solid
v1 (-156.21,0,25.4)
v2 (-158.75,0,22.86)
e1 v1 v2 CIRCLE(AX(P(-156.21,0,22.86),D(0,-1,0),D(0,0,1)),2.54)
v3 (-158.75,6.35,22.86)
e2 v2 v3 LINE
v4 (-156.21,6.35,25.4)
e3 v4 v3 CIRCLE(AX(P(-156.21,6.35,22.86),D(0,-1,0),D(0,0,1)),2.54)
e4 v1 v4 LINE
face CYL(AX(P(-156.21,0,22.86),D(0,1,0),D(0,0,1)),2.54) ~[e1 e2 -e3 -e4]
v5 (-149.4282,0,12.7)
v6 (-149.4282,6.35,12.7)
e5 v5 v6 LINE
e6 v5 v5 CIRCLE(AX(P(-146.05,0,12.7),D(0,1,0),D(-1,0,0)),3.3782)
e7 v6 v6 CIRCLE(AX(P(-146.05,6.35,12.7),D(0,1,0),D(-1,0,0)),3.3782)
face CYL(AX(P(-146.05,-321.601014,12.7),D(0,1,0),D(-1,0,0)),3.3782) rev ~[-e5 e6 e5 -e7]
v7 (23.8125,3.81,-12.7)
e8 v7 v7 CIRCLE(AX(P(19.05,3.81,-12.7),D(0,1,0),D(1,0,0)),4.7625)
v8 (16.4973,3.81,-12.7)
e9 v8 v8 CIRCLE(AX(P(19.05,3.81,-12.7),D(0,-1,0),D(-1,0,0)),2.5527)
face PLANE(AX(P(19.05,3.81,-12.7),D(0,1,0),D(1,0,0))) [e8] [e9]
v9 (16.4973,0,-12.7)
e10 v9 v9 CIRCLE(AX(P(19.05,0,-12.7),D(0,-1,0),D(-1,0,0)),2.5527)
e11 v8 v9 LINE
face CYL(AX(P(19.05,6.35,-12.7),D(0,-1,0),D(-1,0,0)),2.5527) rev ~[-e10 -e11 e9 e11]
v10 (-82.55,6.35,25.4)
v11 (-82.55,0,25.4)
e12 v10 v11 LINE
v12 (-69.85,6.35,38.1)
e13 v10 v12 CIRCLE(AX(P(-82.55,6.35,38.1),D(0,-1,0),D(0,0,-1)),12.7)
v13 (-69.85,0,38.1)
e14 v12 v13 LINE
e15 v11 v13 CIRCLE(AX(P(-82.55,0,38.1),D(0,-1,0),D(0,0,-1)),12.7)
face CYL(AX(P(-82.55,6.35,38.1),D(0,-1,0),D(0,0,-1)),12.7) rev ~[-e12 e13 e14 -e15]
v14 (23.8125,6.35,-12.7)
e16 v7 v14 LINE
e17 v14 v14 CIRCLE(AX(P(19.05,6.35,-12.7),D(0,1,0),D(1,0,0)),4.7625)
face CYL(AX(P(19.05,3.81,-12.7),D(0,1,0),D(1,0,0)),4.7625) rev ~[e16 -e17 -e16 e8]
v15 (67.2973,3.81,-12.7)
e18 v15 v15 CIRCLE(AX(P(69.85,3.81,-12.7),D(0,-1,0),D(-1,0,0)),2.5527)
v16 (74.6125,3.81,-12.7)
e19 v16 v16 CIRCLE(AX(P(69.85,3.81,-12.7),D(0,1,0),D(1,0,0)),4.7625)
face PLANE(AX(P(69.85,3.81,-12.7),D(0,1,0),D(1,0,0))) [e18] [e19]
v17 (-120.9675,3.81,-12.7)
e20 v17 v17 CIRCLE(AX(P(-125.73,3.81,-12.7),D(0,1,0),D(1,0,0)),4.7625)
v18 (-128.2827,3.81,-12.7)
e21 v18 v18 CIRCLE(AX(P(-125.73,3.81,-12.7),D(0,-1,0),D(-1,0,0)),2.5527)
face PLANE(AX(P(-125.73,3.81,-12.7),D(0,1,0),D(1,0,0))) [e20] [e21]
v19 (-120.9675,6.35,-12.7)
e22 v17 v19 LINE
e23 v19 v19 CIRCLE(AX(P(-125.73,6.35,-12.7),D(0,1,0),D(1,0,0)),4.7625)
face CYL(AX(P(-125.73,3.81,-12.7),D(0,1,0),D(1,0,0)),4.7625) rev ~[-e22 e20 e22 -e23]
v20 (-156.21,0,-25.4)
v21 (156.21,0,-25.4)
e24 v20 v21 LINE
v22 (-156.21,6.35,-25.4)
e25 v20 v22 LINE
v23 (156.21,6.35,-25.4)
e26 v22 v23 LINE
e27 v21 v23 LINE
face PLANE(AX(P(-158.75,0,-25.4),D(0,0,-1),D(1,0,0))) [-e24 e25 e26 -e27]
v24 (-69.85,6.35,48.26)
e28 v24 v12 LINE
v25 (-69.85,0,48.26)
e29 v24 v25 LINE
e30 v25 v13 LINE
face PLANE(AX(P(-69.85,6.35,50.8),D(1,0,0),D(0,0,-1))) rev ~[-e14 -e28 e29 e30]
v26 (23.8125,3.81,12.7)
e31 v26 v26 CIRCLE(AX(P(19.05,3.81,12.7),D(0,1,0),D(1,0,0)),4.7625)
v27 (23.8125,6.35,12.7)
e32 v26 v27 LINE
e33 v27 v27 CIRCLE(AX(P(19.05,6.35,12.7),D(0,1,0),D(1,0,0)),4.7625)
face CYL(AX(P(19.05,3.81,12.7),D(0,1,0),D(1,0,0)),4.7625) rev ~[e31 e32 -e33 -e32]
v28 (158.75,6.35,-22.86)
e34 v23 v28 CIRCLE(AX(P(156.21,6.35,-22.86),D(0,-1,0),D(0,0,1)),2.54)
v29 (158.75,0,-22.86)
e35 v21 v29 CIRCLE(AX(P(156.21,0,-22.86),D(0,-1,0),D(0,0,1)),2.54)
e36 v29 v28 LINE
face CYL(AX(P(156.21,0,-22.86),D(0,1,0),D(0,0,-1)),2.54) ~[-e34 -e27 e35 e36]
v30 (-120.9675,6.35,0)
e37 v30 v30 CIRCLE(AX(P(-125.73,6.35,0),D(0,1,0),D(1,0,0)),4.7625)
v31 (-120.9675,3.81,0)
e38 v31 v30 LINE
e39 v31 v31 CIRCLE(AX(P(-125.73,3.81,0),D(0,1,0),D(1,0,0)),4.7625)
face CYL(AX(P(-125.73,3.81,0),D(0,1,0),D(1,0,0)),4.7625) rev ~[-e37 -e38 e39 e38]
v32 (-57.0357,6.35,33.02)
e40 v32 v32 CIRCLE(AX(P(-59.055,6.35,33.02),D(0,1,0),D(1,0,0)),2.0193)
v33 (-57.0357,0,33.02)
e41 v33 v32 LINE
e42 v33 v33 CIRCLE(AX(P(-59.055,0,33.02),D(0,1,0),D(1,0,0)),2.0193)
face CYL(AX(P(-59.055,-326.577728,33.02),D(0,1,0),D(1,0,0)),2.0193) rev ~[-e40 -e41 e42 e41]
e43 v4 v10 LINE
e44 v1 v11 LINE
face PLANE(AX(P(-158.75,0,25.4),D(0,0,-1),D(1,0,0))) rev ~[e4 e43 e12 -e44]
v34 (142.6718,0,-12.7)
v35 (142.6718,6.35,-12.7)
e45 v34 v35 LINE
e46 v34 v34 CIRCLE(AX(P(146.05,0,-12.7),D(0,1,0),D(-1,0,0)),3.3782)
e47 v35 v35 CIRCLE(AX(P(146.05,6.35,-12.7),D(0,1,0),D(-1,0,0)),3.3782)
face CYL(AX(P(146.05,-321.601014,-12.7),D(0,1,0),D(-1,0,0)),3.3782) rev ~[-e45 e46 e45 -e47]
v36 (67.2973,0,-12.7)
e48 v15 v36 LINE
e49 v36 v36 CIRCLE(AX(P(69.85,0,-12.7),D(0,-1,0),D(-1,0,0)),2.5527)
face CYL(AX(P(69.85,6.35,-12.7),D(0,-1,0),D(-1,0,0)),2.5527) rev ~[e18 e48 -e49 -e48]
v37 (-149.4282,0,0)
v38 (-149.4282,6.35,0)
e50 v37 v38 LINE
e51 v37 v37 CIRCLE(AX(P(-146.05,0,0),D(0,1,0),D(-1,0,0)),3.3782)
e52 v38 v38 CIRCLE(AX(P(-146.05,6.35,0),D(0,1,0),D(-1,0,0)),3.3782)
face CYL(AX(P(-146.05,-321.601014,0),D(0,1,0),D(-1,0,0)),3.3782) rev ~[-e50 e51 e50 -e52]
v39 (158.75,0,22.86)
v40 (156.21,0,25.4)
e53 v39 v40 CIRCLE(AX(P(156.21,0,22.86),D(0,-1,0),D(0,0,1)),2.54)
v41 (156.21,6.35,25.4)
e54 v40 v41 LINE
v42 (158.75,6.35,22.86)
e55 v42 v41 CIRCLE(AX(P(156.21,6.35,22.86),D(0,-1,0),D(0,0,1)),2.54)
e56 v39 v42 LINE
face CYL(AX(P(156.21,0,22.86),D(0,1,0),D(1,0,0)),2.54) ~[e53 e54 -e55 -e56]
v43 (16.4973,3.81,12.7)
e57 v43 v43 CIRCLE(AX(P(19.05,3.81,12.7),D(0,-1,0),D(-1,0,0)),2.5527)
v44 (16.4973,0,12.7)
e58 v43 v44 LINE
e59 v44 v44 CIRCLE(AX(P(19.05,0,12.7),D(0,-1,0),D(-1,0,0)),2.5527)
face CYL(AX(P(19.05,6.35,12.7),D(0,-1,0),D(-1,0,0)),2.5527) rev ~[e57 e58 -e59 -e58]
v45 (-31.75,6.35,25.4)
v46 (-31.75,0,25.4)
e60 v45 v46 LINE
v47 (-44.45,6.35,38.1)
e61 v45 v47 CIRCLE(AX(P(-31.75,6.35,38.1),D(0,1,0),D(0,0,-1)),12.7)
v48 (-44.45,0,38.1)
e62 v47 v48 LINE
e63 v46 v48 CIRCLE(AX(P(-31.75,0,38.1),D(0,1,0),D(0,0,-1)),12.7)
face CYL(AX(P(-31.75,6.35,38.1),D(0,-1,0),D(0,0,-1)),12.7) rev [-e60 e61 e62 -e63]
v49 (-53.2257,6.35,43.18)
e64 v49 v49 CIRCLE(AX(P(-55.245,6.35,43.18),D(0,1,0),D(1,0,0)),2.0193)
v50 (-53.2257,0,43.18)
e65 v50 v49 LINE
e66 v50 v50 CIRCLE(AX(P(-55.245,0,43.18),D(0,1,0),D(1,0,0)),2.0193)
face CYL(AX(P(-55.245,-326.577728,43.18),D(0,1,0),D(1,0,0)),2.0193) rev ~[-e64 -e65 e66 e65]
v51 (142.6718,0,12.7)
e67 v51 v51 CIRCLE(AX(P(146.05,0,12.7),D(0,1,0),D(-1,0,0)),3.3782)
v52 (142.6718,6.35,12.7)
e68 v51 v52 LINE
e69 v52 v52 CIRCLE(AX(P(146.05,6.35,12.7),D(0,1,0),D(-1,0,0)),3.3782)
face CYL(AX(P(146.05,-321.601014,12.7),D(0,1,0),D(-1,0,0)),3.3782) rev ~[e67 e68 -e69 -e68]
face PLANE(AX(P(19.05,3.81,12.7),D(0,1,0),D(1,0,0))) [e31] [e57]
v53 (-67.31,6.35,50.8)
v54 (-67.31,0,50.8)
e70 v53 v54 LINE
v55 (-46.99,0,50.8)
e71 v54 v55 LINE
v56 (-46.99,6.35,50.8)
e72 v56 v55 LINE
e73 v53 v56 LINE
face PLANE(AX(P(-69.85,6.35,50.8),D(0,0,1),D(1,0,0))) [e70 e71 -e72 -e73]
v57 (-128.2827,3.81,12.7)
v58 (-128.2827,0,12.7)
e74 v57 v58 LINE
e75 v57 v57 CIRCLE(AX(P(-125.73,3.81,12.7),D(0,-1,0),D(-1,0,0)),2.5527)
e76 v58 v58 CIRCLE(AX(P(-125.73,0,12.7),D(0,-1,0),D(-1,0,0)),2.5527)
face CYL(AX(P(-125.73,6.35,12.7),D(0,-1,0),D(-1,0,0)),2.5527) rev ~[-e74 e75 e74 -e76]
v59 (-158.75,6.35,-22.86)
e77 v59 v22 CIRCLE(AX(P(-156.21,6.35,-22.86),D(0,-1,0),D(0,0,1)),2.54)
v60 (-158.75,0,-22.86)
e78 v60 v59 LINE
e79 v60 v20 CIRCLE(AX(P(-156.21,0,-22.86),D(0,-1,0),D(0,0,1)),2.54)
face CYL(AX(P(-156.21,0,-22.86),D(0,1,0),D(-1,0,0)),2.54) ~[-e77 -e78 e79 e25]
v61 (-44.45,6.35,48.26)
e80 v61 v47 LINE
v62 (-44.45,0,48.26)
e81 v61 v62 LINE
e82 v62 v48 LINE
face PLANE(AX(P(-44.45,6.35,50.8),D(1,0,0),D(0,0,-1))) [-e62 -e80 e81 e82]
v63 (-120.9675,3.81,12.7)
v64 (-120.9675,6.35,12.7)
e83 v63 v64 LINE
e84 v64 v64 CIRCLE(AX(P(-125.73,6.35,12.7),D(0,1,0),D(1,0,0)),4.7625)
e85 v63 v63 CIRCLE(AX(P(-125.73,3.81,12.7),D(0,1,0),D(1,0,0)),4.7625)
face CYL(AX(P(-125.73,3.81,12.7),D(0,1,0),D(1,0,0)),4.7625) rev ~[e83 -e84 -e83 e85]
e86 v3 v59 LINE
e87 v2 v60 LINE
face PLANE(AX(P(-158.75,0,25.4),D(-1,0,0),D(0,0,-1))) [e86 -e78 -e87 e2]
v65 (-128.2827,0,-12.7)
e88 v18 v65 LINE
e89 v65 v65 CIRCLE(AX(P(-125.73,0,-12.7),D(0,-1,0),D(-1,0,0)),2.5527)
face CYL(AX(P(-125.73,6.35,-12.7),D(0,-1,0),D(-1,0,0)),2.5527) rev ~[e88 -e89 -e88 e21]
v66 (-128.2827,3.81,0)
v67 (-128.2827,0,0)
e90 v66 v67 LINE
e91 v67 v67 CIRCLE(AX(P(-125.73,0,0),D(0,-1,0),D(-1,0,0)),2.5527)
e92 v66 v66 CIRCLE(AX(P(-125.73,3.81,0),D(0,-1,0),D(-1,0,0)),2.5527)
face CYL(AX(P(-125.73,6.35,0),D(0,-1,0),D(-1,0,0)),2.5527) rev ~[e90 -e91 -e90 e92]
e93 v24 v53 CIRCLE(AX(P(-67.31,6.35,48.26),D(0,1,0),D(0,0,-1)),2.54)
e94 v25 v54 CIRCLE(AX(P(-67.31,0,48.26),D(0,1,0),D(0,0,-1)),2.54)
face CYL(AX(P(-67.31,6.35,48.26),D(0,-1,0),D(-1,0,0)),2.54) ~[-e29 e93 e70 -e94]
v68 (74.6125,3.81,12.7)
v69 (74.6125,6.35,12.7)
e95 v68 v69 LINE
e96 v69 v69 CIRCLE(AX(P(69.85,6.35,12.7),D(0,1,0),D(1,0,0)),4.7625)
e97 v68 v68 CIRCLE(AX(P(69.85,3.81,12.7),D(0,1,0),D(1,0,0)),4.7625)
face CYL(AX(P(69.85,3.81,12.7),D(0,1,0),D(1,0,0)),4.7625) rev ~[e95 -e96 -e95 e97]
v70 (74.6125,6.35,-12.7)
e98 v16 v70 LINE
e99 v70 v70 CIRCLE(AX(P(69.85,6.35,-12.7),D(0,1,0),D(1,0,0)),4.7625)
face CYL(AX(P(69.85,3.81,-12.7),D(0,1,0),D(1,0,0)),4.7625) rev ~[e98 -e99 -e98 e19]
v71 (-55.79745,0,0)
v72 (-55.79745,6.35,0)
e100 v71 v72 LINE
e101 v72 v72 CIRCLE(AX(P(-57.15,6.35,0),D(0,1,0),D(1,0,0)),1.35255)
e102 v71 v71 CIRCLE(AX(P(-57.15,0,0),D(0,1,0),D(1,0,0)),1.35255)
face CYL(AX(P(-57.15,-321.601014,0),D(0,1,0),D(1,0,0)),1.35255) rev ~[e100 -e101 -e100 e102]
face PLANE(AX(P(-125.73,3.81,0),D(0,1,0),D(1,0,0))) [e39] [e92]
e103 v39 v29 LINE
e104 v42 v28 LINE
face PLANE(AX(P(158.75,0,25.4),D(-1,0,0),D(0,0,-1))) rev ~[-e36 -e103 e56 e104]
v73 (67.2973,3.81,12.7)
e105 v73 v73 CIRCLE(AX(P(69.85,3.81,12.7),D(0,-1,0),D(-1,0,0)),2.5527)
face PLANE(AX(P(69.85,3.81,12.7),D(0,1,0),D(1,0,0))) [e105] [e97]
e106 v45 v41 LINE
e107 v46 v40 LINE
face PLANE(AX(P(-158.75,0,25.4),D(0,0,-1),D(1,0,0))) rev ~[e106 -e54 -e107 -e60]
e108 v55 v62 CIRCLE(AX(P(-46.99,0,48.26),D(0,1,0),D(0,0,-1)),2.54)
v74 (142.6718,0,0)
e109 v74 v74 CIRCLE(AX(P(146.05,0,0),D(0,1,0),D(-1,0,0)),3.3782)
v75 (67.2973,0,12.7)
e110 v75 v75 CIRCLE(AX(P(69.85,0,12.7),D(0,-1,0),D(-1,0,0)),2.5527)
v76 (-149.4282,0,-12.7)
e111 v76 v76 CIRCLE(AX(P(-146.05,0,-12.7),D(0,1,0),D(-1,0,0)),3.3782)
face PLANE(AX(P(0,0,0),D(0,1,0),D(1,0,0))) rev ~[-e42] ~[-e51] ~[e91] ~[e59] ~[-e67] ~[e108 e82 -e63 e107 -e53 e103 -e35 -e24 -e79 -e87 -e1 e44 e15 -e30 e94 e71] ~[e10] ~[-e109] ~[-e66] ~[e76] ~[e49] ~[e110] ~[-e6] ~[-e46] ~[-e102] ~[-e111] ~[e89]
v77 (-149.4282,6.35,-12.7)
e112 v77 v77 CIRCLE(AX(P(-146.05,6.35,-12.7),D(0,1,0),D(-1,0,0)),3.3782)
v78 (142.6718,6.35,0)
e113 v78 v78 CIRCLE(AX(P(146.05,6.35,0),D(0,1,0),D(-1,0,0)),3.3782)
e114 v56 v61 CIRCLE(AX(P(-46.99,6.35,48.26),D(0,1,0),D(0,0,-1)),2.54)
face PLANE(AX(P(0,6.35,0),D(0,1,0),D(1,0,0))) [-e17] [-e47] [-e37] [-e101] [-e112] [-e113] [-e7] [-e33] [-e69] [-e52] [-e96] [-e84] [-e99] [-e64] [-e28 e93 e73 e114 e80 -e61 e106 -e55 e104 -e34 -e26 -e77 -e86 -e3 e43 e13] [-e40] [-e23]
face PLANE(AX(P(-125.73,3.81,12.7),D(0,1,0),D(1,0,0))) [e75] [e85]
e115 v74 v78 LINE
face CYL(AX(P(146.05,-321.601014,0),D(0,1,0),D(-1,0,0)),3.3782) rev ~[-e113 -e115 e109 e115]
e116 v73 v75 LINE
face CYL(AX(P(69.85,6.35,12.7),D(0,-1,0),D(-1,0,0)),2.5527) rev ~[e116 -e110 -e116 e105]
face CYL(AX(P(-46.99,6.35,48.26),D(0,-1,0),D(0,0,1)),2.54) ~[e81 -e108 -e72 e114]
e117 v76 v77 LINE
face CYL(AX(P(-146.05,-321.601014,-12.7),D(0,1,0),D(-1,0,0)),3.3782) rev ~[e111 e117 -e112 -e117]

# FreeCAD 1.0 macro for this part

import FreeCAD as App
import Part
import Sketcher

V = App.Vector
Q = App.Units.Quantity


def edges_at(feature, points):
    """Names of the edges that pass closest to the given points."""
    edges = feature.Shape.Edges
    near = lambda p: min(range(len(edges)), key=lambda i: edges[i].distToShape(Part.Vertex(*p))[0])
    return sorted({f"Edge{near(p) + 1}" for p in points})


def add_polygon(sketch, points):
    """Adds a closed chain of lines whose ends are joined by coincident constraints."""
    first, n = sketch.GeometryCount, len(points)
    for a, b in zip(points, points[1:] + points[:1]):
        sketch.addGeometry(Part.LineSegment(App.Vector(*a, 0), App.Vector(*b, 0)), False)
    for i in range(n):
        sketch.addConstraint(Sketcher.Constraint("Coincident", first + i, 2, first + (i + 1) % n, 1))

doc = App.newDocument("Part")
body = doc.addObject("PartDesign::Body", "Body")

# Sketch on XZ plane
sketch1 = body.newObject("Sketcher::SketchObject", "Sketch")
sketch1.AttachmentSupport = (doc.getObject("XZ_Plane"), [""])
sketch1.MapMode = "FlatFace"
add_polygon(sketch1, [(-158.75, -25.4), (-158.75, 25.4), (158.75, 25.4), (158.75, -25.4)])  # lines 0-3
sketch1.addConstraint(Sketcher.Constraint("Vertical", 0))
sketch1.addConstraint(Sketcher.Constraint("Horizontal", 1))
sketch1.addConstraint(Sketcher.Constraint("Vertical", 2))
sketch1.addConstraint(Sketcher.Constraint("Horizontal", 3))
sketch1.addConstraint(Sketcher.Constraint("Symmetric", 0, 2, 2, 2, -1, 1))
sketch1.addConstraint(Sketcher.Constraint("DistanceY", 0, 1, 0, 2, Q("2 in")))
sketch1.addConstraint(Sketcher.Constraint("DistanceX", 1, 1, 1, 2, Q("12.5 in")))
pad1 = body.newObject("PartDesign::Pad", "Pad")
pad1.Profile = sketch1
pad1.Length = Q("0.25 in")
pad1.Reversed = True

# Sketch on XZ plane
sketch2 = body.newObject("Sketcher::SketchObject", "Sketch001")
sketch2.AttachmentSupport = (doc.getObject("XZ_Plane"), [""])
sketch2.MapMode = "FlatFace"
sketch2.AttachmentOffset = App.Placement(V(0, 0, -0.25 * 25.4), App.Rotation())
sketch2.addGeometry(Part.Circle(V(-125.73, 12.7, 0), V(0, 0, 1), 2.5527), False)
sketch2.addGeometry(Part.Circle(V(19.05, -12.7, 0), V(0, 0, 1), 2.5527), False)
sketch2.addGeometry(Part.Circle(V(69.85, -12.7, 0), V(0, 0, 1), 2.5527), False)
sketch2.addGeometry(Part.Circle(V(19.05, 12.7, 0), V(0, 0, 1), 2.5527), False)
sketch2.addGeometry(Part.Circle(V(69.85, 12.7, 0), V(0, 0, 1), 2.5527), False)
sketch2.addGeometry(Part.Circle(V(-125.73, -12.7, 0), V(0, 0, 1), 2.5527), False)
sketch2.addGeometry(Part.Circle(V(-125.73, 0, 0), V(0, 0, 1), 2.5527), False)
sketch2.addConstraint(Sketcher.Constraint("Equal", 0, 1))
sketch2.addConstraint(Sketcher.Constraint("Equal", 1, 2))
sketch2.addConstraint(Sketcher.Constraint("Equal", 2, 3))
sketch2.addConstraint(Sketcher.Constraint("Equal", 3, 4))
sketch2.addConstraint(Sketcher.Constraint("Equal", 4, 5))
sketch2.addConstraint(Sketcher.Constraint("Equal", 5, 6))
sketch2.addConstraint(Sketcher.Constraint("Symmetric", 1, 3, 3, 3, -1))
sketch2.addConstraint(Sketcher.Constraint("Symmetric", 2, 3, 4, 3, -1))
sketch2.addConstraint(Sketcher.Constraint("Symmetric", 0, 3, 5, 3, -1))
sketch2.addConstraint(Sketcher.Constraint("PointOnObject", 6, 3, -1))
sketch2.addConstraint(Sketcher.Constraint("Horizontal", 1, 3, 2, 3))
sketch2.addConstraint(Sketcher.Constraint("Horizontal", 0, 3, 3, 3))
sketch2.addConstraint(Sketcher.Constraint("Vertical", 5, 3, 6, 3))
sketch2.addConstraint(Sketcher.Constraint("Diameter", 0, Q("0.201 in")))
sketch2.addConstraint(Sketcher.Constraint("DistanceY", 1, 3, 0, 3, Q("1 in")))
sketch2.addConstraint(Sketcher.Constraint("DistanceX", 1, 3, 2, 3, Q("2 in")))
sketch2.addConstraint(Sketcher.Constraint("DistanceX", 0, 3, 1, 3, Q("5.7 in")))
sketch2.addConstraint(Sketcher.Constraint("DistanceX", 0, 3, -1, 1, Q("4.95 in")))
doc.recompute()
hole = body.newObject("PartDesign::Hole", "Hole")
hole.Profile = sketch2
hole.ThreadType = "None"
hole.Diameter = Q("0.201 in")
hole.DepthType = "ThroughAll"
hole.HoleCutType = "Counterbore"
hole.HoleCutDiameter = Q("0.375 in")
hole.HoleCutDepth = Q("0.1 in")
hole.Reversed = True

# Sketch on XZ plane
sketch3 = body.newObject("Sketcher::SketchObject", "Sketch002")
sketch3.AttachmentSupport = (doc.getObject("XZ_Plane"), [""])
sketch3.MapMode = "FlatFace"
sketch3.addGeometry(Part.Circle(V(-146.05, 12.7, 0), V(0, 0, 1), 3.3782), False)
sketch3.addGeometry(Part.Circle(V(-146.05, 0, 0), V(0, 0, 1), 3.3782), False)
sketch3.addGeometry(Part.Circle(V(-146.05, -12.7, 0), V(0, 0, 1), 3.3782), False)
sketch3.addGeometry(Part.Circle(V(146.05, 12.7, 0), V(0, 0, 1), 3.3782), False)
sketch3.addGeometry(Part.Circle(V(146.05, 0, 0), V(0, 0, 1), 3.3782), False)
sketch3.addGeometry(Part.Circle(V(146.05, -12.7, 0), V(0, 0, 1), 3.3782), False)
sketch3.addConstraint(Sketcher.Constraint("Equal", 0, 1))
sketch3.addConstraint(Sketcher.Constraint("Equal", 1, 2))
sketch3.addConstraint(Sketcher.Constraint("Equal", 2, 3))
sketch3.addConstraint(Sketcher.Constraint("Equal", 3, 4))
sketch3.addConstraint(Sketcher.Constraint("Equal", 4, 5))
sketch3.addConstraint(Sketcher.Constraint("Symmetric", 2, 3, 3, 3, -1, 1))
sketch3.addConstraint(Sketcher.Constraint("Symmetric", 1, 3, 4, 3, -1, 1))
sketch3.addConstraint(Sketcher.Constraint("Symmetric", 0, 3, 5, 3, -1, 1))
sketch3.addConstraint(Sketcher.Constraint("Symmetric", 0, 3, 3, 3, -2))
sketch3.addConstraint(Sketcher.Constraint("PointOnObject", 1, 3, -1))
sketch3.addConstraint(Sketcher.Constraint("Vertical", 0, 3, 1, 3))
sketch3.addConstraint(Sketcher.Constraint("Diameter", 0, Q("0.266 in")))
sketch3.addConstraint(Sketcher.Constraint("DistanceY", 2, 3, 0, 3, Q("1 in")))
sketch3.addConstraint(Sketcher.Constraint("DistanceX", 0, 3, 3, 3, Q("11.5 in")))
doc.recompute()
hole2 = body.newObject("PartDesign::Hole", "Hole001")
hole2.Profile = sketch3
hole2.ThreadType = "None"
hole2.Diameter = Q("0.266 in")
hole2.DepthType = "ThroughAll"

# Sketch on XZ plane
sketch4 = body.newObject("Sketcher::SketchObject", "Sketch003")
sketch4.AttachmentSupport = (doc.getObject("XZ_Plane"), [""])
sketch4.MapMode = "FlatFace"
sketch4.addGeometry(Part.Circle(V(-57.15, 0, 0), V(0, 0, 1), 1.35255), False)
sketch4.addConstraint(Sketcher.Constraint("PointOnObject", 0, 3, -1))
sketch4.addConstraint(Sketcher.Constraint("Diameter", 0, Q("0.1065 in")))
sketch4.addConstraint(Sketcher.Constraint("DistanceX", 0, 3, -1, 1, Q("2.25 in")))
doc.recompute()
hole3 = body.newObject("PartDesign::Hole", "Hole002")
hole3.Profile = sketch4
hole3.ThreadType = "None"
hole3.Diameter = Q("0.1065 in")
hole3.DepthType = "ThroughAll"

# Sketch on XZ plane
sketch5 = body.newObject("Sketcher::SketchObject", "Sketch004")
sketch5.AttachmentSupport = (doc.getObject("XZ_Plane"), [""])
sketch5.MapMode = "FlatFace"
sketch5.AttachmentOffset = App.Placement(V(0, 0, -0.25 * 25.4), App.Rotation())
add_polygon(sketch5, [(-69.85, 25.4), (-69.85, 50.8), (-44.45, 50.8), (-44.45, 25.4)])  # lines 0-3
sketch5.addConstraint(Sketcher.Constraint("Vertical", 0))
sketch5.addConstraint(Sketcher.Constraint("Horizontal", 1))
sketch5.addConstraint(Sketcher.Constraint("Vertical", 2))
sketch5.addConstraint(Sketcher.Constraint("Horizontal", 3))
sketch5.addConstraint(Sketcher.Constraint("Equal", 3, 0))
sketch5.addConstraint(Sketcher.Constraint("DistanceX", 1, 1, 1, 2, Q("1 in")))
sketch5.addConstraint(Sketcher.Constraint("DistanceY", -1, 1, 0, 2, Q("2 in")))
sketch5.addConstraint(Sketcher.Constraint("DistanceX", 0, 2, -1, 1, Q("2.75 in")))
pad2 = body.newObject("PartDesign::Pad", "Pad001")
pad2.Profile = sketch5
pad2.Length = Q("0.25 in")

# Sketch on XZ plane
sketch6 = body.newObject("Sketcher::SketchObject", "Sketch005")
sketch6.AttachmentSupport = (doc.getObject("XZ_Plane"), [""])
sketch6.MapMode = "FlatFace"
sketch6.addGeometry(Part.Circle(V(-55.245, 43.18, 0), V(0, 0, 1), 2.0193), False)
sketch6.addGeometry(Part.Circle(V(-59.055, 33.02, 0), V(0, 0, 1), 2.0193), False)
sketch6.addConstraint(Sketcher.Constraint("Equal", 0, 1))
sketch6.addConstraint(Sketcher.Constraint("Diameter", 0, Q("0.159 in")))
sketch6.addConstraint(Sketcher.Constraint("DistanceY", -1, 1, 0, 3, Q("1.7 in")))
sketch6.addConstraint(Sketcher.Constraint("DistanceY", -1, 1, 1, 3, Q("1.3 in")))
sketch6.addConstraint(Sketcher.Constraint("DistanceX", 1, 3, 0, 3, Q("0.15 in")))
sketch6.addConstraint(Sketcher.Constraint("DistanceX", 0, 3, -1, 1, Q("2.175 in")))
doc.recompute()
hole4 = body.newObject("PartDesign::Hole", "Hole003")
hole4.Profile = sketch6
hole4.ThreadType = "None"
hole4.Diameter = Q("0.159 in")
hole4.DepthType = "ThroughAll"
doc.recompute()

fillet = body.newObject("PartDesign::Fillet", "Fillet")
fillet.Base = (hole4, edges_at(hole4, [(-44.45, 3.175, 25.4), (-69.85, 3.175, 25.4)]))
fillet.Radius = Q("0.5 in")
doc.recompute()

fillet2 = body.newObject("PartDesign::Fillet", "Fillet001")
fillet2.Base = (fillet, edges_at(fillet, [
    (-44.45, 3.175, 50.8),
    (-69.85, 3.175, 50.8),
    (158.75, 3.175, 25.4),
    (-158.75, 3.175, 25.4),
    (-158.75, 3.175, -25.4),
    (158.75, 3.175, -25.4),
]))
fillet2.Radius = Q("0.1 in")

doc.recompute()
